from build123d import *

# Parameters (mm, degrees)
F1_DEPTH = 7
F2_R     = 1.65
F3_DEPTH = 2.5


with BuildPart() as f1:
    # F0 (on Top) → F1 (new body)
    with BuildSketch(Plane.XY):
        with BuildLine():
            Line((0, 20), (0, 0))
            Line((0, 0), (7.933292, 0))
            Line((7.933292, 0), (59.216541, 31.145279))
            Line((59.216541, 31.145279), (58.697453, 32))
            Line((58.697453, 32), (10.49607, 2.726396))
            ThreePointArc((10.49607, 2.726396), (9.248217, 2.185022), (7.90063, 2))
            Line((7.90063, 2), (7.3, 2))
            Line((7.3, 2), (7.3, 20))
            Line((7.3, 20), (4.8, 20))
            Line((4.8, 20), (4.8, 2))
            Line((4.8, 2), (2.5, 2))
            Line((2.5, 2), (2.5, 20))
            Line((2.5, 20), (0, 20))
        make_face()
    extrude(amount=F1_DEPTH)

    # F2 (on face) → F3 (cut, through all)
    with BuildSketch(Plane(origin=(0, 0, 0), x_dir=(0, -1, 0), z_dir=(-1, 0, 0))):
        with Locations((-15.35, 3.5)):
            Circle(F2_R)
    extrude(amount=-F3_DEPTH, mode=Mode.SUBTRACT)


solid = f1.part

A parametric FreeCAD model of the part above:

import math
import FreeCAD as App
import Part
import Sketcher
Q = App.Units.Quantity

doc = App.newDocument("Part")
params = doc.addObject("Spreadsheet::Sheet", "Params")
for row, (alias, value) in enumerate([
    ("sketch1_height", "20 mm"),
    ("sketch1_height2", "18 mm"),
    ("sketch1_length", "60 mm"),
    ("sketch1_length2", "1 mm"),
    ("sketch1_width", "2.5 mm"),
    ("pad1_length", "7 mm"),
    ("sketch2_diameter", "3.3 mm"),
    ("pocket1_length", "2.5 mm"),
], start=1):
    params.set(f"A{row}", alias)
    params.set(f"B{row}", "=" + value)
    params.setAlias(f"B{row}", alias)

body = doc.addObject("PartDesign::Body", "Body")

# Sketch on XY plane
sketch1 = doc.addObject("Sketcher::SketchObject", "Sketch")
body.addObject(sketch1)
sketch1.AttachmentSupport = (doc.XY_Plane, [""])
sketch1.MapMode = "FlatFace"
sketch1.addGeometry(Part.LineSegment(App.Vector(0, 20, 0), App.Vector(0, 0, 0)), False)
sketch1.addGeometry(Part.LineSegment(App.Vector(0, 0, 0), App.Vector(7.9, 0, 0)), False)
sketch1.addGeometry(Part.LineSegment(App.Vector(7.9, 0, 0), App.Vector(59.2, 31.1, 0)), False)
sketch1.addGeometry(Part.LineSegment(App.Vector(59.2, 31.1, 0), App.Vector(58.7, 32, 0)), False)
sketch1.addGeometry(Part.LineSegment(App.Vector(58.7, 32, 0), App.Vector(10.5, 2.7, 0)), False)
sketch1.addGeometry(Part.ArcOfCircle(Part.Circle(App.Vector(7.9, 7, 0), App.Vector(0, 0, 1), 5), math.radians(-90), math.radians(-59)), False)
sketch1.addGeometry(Part.LineSegment(App.Vector(7.9, 2, 0), App.Vector(7.3, 2, 0)), False)
sketch1.addGeometry(Part.LineSegment(App.Vector(7.3, 2, 0), App.Vector(7.3, 20, 0)), False)
sketch1.addGeometry(Part.LineSegment(App.Vector(7.3, 20, 0), App.Vector(4.8, 20, 0)), False)
sketch1.addGeometry(Part.LineSegment(App.Vector(4.8, 20, 0), App.Vector(4.8, 2, 0)), False)
sketch1.addGeometry(Part.LineSegment(App.Vector(4.8, 2, 0), App.Vector(2.5, 2, 0)), False)
sketch1.addGeometry(Part.LineSegment(App.Vector(2.5, 2, 0), App.Vector(2.5, 20, 0)), False)
sketch1.addGeometry(Part.LineSegment(App.Vector(2.5, 20, 0), App.Vector(0, 20, 0)), False)
sketch1.addConstraint(Sketcher.Constraint("Coincident", 0, 2, 1, 1))
sketch1.addConstraint(Sketcher.Constraint("Coincident", 1, 2, 2, 1))
sketch1.addConstraint(Sketcher.Constraint("Coincident", 2, 2, 3, 1))
sketch1.addConstraint(Sketcher.Constraint("Coincident", 3, 2, 4, 1))
sketch1.addConstraint(Sketcher.Constraint("Tangent", 4, 2, 5, 2))
sketch1.addConstraint(Sketcher.Constraint("Tangent", 5, 1, 6, 1))
sketch1.addConstraint(Sketcher.Constraint("Coincident", 6, 2, 7, 1))
sketch1.addConstraint(Sketcher.Constraint("Coincident", 7, 2, 8, 1))
sketch1.addConstraint(Sketcher.Constraint("Coincident", 8, 2, 9, 1))
sketch1.addConstraint(Sketcher.Constraint("Coincident", 9, 2, 10, 1))
sketch1.addConstraint(Sketcher.Constraint("Coincident", 10, 2, 11, 1))
sketch1.addConstraint(Sketcher.Constraint("Coincident", 11, 2, 12, 1))
sketch1.addConstraint(Sketcher.Constraint("Coincident", 12, 2, 0, 1))
sketch1.addConstraint(Sketcher.Constraint("Vertical", 0))
sketch1.addConstraint(Sketcher.Constraint("Horizontal", 1))
sketch1.addConstraint(Sketcher.Constraint("Horizontal", 6))
sketch1.addConstraint(Sketcher.Constraint("Vertical", 7))
sketch1.addConstraint(Sketcher.Constraint("Horizontal", 8))
sketch1.addConstraint(Sketcher.Constraint("Vertical", 9))
sketch1.addConstraint(Sketcher.Constraint("Horizontal", 10))
sketch1.addConstraint(Sketcher.Constraint("Vertical", 11))
sketch1.addConstraint(Sketcher.Constraint("Horizontal", 12))
sketch1.addConstraint(Sketcher.Constraint("Coincident", 0, 2, -1, 1))
sketch1.addConstraint(Sketcher.Constraint("Perpendicular", 2, 3))
sketch1.addConstraint(Sketcher.Constraint("Perpendicular", 3, 4))
sketch1.addConstraint(Sketcher.Constraint("Horizontal", 6, 2, 9, 2))
sketch1.addConstraint(Sketcher.Constraint("Horizontal", 8, 2, 11, 2))
sketch1.addConstraint(Sketcher.Constraint("Equal", 8, 12))
sketch1.addConstraint(Sketcher.Constraint("DistanceY", 0, 2, 0, 1, Q("20 mm")))
sketch1.addConstraint(Sketcher.Constraint("DistanceY", 7, 1, 7, 2, Q("18 mm")))
sketch1.addConstraint(Sketcher.Constraint("Distance", 2, Q("60 mm")))
sketch1.addConstraint(Sketcher.Constraint("Distance", 3, Q("1 mm")))
sketch1.addConstraint(Sketcher.Constraint("DistanceX", 8, 2, 8, 1, Q("2.5 mm")))
sketch1.addConstraint(Sketcher.Constraint("DistanceX", 10, 2, 10, 1, Q("2.3 mm")))
sketch1.addConstraint(Sketcher.Constraint("DistanceY", -1, 1, 3, 2, Q("32 mm")))
sketch1.addConstraint(Sketcher.Constraint("Radius", 5, Q("4.99999 mm")))
sketch1.addConstraint(Sketcher.Constraint("DistanceX", 1, 1, 1, 2, Q("7.933292 mm")))
sketch1.setExpression("Constraints[28]", "Params.sketch1_height")
sketch1.setExpression("Constraints[29]", "Params.sketch1_height2")
sketch1.setExpression("Constraints[30]", "Params.sketch1_length")
sketch1.setExpression("Constraints[31]", "Params.sketch1_length2")
sketch1.setExpression("Constraints[32]", "Params.sketch1_width")
pad1 = doc.addObject("PartDesign::Pad", "Pad")
body.addObject(pad1)
pad1.Profile = sketch1
pad1.setExpression("Length", "Params.pad1_length")

# Sketch on YZ plane
sketch2 = doc.addObject("Sketcher::SketchObject", "Sketch001")
body.addObject(sketch2)
sketch2.AttachmentSupport = (doc.YZ_Plane, [""])
sketch2.MapMode = "FlatFace"
sketch2.addGeometry(Part.Circle(App.Vector(15.3, 3.5, 0), App.Vector(0, 0, 1), 1.6), False)
sketch2.addConstraint(Sketcher.Constraint("Diameter", 0, Q("3.3 mm")))
sketch2.addConstraint(Sketcher.Constraint("DistanceY", -1, 1, 0, 3, Q("3.5 mm")))
sketch2.addConstraint(Sketcher.Constraint("DistanceX", -1, 1, 0, 3, Q("15.35 mm")))
sketch2.setExpression("Constraints[0]", "Params.sketch2_diameter")
pocket1 = doc.addObject("PartDesign::Pocket", "Pocket")
body.addObject(pocket1)
pocket1.Profile = sketch2
pocket1.setExpression("Length", "Params.pocket1_length")
pocket1.Reversed = True

doc.recompute()
